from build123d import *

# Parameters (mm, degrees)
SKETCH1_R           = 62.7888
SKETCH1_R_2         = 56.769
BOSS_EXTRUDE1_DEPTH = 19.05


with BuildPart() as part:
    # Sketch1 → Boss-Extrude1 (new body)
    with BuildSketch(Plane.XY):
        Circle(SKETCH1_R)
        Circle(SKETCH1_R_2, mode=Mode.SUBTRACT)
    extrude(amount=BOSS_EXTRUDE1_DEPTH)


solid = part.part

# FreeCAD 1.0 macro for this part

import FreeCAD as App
import Part
import Sketcher

V = App.Vector
Q = App.Units.Quantity

doc = App.newDocument("Part")
body = doc.addObject("PartDesign::Body", "Body")

sketch1 = body.newObject("Sketcher::SketchObject", "Sketch")
sketch1.AttachmentSupport = (doc.getObject("XY_Plane"), [""])
sketch1.MapMode = "FlatFace"
sketch1.addGeometry(Part.Circle(V(0, 0, 0), V(0, 0, 1), 63), False)
sketch1.addGeometry(Part.Circle(V(0, 0, 0), V(0, 0, 1), 57), False)
sketch1.addConstraint(Sketcher.Constraint("Coincident", 0, 3, -1, 1))
sketch1.addConstraint(Sketcher.Constraint("Coincident", 1, 3, -1, 1))
sketch1.addConstraint(Sketcher.Constraint("Diameter", 1, Q("4.47 in")))
sketch1.addConstraint(Sketcher.Constraint("Diameter", 0, Q("4.944 in")))
pad1 = body.newObject("PartDesign::Pad", "Pad")
pad1.Profile = sketch1
pad1.Length = Q("0.75 in")

doc.recompute()
